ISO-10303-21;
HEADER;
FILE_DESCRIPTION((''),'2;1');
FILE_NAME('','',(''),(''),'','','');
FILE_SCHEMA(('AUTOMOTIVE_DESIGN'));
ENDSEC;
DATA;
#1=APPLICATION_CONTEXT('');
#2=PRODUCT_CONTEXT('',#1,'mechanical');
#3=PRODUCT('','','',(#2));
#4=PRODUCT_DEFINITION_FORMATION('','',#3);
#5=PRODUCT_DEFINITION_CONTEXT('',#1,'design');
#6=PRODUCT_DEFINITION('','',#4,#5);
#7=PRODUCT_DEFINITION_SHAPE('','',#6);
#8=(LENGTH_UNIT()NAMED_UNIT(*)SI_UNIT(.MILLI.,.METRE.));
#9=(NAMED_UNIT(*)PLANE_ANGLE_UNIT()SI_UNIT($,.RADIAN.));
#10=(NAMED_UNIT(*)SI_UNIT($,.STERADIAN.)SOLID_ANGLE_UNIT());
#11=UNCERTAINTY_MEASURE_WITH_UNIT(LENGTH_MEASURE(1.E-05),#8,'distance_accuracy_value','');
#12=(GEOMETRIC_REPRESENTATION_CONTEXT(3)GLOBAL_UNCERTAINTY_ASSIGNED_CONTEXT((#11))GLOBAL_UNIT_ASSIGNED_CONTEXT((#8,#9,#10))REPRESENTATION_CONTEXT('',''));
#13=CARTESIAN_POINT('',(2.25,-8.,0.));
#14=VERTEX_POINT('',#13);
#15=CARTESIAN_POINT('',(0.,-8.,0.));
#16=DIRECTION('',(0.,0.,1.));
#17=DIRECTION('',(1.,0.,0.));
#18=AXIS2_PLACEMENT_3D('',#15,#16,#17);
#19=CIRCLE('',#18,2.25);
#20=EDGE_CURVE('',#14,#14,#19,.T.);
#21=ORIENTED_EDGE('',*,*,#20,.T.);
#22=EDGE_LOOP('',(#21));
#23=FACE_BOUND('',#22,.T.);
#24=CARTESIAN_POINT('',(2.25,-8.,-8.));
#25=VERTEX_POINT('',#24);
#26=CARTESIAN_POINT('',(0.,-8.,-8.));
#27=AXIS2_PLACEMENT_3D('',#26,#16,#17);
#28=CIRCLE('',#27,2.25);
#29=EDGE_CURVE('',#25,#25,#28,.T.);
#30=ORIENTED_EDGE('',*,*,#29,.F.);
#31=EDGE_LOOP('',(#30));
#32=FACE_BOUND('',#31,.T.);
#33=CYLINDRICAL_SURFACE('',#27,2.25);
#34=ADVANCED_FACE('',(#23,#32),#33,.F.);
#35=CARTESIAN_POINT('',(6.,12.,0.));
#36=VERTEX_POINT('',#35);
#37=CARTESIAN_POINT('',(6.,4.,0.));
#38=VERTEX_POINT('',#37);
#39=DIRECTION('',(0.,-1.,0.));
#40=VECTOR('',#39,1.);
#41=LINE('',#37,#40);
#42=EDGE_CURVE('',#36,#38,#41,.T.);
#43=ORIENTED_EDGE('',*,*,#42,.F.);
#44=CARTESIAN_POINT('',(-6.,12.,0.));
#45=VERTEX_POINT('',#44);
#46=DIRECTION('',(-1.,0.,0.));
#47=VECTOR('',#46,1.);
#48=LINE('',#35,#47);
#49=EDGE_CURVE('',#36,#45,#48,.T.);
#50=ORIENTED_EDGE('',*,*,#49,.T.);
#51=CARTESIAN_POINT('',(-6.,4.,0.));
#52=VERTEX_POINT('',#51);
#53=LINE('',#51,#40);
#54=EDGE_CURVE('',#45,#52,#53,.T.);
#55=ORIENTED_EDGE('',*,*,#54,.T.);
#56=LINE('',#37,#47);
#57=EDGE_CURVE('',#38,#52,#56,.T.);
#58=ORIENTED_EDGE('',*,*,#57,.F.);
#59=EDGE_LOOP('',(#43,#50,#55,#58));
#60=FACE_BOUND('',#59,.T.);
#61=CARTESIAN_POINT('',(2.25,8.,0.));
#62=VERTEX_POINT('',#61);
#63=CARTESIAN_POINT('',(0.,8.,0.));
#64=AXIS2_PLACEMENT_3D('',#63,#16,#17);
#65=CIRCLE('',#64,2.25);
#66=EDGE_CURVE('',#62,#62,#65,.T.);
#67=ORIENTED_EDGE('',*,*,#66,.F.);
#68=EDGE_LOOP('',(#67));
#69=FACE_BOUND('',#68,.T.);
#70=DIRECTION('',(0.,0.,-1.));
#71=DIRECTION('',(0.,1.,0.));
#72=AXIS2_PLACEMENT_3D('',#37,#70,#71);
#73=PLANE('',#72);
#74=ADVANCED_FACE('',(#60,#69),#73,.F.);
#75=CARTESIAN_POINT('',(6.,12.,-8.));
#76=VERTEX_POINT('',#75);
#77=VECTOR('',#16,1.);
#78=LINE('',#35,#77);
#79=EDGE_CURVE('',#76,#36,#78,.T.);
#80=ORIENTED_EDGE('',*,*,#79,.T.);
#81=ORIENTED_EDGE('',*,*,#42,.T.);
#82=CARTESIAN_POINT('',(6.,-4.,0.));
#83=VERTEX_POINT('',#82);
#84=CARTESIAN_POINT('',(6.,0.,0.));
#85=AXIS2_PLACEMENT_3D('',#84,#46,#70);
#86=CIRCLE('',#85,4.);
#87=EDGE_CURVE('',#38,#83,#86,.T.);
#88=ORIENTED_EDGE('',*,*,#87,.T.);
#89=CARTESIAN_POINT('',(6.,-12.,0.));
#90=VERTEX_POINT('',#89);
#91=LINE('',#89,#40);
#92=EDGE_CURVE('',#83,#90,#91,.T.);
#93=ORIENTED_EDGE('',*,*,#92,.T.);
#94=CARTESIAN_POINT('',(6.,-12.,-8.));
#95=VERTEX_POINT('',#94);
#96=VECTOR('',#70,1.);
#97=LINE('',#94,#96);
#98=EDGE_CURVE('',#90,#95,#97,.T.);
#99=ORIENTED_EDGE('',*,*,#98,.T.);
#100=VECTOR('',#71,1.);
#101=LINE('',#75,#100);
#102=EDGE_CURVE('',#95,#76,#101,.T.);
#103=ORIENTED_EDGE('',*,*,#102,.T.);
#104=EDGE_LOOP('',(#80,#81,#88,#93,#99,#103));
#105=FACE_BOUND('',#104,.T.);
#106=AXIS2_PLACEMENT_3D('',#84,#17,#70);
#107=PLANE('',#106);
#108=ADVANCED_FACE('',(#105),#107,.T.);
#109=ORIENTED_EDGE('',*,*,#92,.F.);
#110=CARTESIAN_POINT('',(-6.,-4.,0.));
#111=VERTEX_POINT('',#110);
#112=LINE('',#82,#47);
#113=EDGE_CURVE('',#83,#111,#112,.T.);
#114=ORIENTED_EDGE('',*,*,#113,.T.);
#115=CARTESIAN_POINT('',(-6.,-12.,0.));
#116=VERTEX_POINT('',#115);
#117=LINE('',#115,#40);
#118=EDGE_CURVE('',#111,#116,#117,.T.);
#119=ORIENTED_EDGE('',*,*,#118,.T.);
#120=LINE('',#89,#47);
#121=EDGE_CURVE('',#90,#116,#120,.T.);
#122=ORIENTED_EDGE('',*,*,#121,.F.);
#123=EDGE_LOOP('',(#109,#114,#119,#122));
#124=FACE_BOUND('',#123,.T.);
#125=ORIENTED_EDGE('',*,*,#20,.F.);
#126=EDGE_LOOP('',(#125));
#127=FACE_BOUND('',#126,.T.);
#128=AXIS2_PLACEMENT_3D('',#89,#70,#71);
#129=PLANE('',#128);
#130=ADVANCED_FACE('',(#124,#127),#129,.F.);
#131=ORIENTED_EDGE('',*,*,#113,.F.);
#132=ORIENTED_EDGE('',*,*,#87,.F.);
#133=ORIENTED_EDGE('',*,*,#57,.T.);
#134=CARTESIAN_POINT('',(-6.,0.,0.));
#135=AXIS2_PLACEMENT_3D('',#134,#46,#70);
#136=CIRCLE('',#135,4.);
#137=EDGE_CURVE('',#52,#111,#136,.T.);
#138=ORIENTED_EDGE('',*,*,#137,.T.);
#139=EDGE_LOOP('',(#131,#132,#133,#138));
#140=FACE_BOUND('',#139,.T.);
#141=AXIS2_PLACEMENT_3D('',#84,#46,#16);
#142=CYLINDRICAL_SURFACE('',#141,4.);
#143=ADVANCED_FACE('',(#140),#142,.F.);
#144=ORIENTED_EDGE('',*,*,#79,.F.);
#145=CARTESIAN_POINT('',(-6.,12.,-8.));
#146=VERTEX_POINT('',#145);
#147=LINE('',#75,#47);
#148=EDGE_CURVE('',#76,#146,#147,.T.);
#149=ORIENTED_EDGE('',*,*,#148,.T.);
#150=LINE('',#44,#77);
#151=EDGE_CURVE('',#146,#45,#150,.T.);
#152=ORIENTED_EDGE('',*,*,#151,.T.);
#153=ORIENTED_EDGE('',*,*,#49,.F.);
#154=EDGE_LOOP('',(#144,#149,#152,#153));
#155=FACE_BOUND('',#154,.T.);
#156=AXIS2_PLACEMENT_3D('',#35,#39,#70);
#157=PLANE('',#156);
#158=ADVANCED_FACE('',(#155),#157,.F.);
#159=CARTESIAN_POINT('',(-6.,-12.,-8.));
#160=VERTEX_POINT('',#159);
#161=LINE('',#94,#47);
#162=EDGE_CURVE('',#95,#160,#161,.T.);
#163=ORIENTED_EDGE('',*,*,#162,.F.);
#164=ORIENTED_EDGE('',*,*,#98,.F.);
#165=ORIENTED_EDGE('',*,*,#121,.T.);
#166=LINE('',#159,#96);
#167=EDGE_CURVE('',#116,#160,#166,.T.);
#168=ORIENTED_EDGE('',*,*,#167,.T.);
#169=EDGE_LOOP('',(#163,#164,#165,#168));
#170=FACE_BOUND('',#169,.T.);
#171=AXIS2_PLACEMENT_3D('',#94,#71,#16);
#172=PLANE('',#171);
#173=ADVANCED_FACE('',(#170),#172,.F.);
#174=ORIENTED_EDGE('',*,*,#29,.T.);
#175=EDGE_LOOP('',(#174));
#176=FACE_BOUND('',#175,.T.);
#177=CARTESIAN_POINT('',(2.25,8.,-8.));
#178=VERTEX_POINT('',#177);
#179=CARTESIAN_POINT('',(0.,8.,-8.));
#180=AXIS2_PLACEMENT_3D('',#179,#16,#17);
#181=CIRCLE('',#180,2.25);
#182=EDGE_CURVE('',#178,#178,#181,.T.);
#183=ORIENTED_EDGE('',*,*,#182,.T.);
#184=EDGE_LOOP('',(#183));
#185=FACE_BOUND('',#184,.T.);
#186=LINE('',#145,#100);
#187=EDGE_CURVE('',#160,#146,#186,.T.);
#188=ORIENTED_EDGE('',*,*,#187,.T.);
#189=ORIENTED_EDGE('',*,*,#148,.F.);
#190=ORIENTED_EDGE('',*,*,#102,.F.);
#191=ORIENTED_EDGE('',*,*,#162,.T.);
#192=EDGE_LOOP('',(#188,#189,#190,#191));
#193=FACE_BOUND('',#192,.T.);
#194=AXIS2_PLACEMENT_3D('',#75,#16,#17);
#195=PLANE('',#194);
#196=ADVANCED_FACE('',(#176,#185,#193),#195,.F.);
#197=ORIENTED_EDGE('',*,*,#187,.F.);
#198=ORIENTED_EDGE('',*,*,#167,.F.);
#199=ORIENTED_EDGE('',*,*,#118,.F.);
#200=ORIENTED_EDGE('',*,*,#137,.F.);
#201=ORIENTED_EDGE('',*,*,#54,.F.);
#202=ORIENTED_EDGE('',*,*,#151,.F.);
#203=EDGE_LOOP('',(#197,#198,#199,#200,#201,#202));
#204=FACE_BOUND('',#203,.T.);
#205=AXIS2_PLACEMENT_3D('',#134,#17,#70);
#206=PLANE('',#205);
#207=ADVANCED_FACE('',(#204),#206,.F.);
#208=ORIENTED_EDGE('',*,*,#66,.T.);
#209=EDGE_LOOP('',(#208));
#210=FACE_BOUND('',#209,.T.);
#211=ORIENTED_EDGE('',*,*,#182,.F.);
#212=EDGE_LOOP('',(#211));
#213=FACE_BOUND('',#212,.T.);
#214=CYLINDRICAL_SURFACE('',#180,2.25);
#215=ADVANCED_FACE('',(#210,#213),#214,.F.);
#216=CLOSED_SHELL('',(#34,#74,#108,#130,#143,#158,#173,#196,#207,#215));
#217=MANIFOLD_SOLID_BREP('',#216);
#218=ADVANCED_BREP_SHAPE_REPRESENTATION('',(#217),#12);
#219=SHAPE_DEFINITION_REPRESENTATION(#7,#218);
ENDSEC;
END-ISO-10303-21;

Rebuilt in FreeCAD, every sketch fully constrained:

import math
import FreeCAD as App
import Part
import Sketcher

doc = App.newDocument("Part")
params = doc.addObject("Spreadsheet::Sheet", "Params")
for row, (alias, value) in enumerate([
    ("sketch1_radius", "4 mm"),
    ("sketch1_width", "8 mm"),
    ("pad1_length", "12 mm"),
    ("sketch2_diameter", "4.5 mm"),
], start=1):
    params.set(f"A{row}", alias)
    params.set(f"B{row}", "=" + value)
    params.setAlias(f"B{row}", alias)

body = doc.addObject("PartDesign::Body", "Body")

# Sketch on YZ plane
sketch1 = body.newObject("Sketcher::SketchObject", "Sketch")
sketch1.AttachmentSupport = (doc.getObject("YZ_Plane"), [""])
sketch1.MapMode = "FlatFace"
sketch1.addGeometry([
    Part.LineSegment(App.Vector(12, 0, 0), App.Vector(4, 0, 0)),  # 0
    Part.ArcOfCircle(Part.Circle(App.Vector(0, 0, 0), App.Vector(0, 0, 1), 4), math.radians(180), math.radians(360)),  # 1
    Part.LineSegment(App.Vector(-4, 0, 0), App.Vector(-12, 0, 0)),  # 2
    Part.LineSegment(App.Vector(-12, 0, 0), App.Vector(-12, -8, 0)),  # 3
    Part.LineSegment(App.Vector(-12, -8, 0), App.Vector(12, -8, 0)),  # 4
    Part.LineSegment(App.Vector(12, -8, 0), App.Vector(12, 0, 0)),  # 5
], False)
sketch1.addConstraint([
    Sketcher.Constraint("Coincident", 0, 2, 1, 2),
    Sketcher.Constraint("Coincident", 1, 1, 2, 1),
    Sketcher.Constraint("Coincident", 2, 2, 3, 1),
    Sketcher.Constraint("Coincident", 3, 2, 4, 1),
    Sketcher.Constraint("Coincident", 4, 2, 5, 1),
    Sketcher.Constraint("Coincident", 5, 2, 0, 1),
    Sketcher.Constraint("Horizontal", 0),
    Sketcher.Constraint("Horizontal", 2),
    Sketcher.Constraint("Vertical", 3),
    Sketcher.Constraint("Horizontal", 4),
    Sketcher.Constraint("Vertical", 5),
    Sketcher.Constraint("Coincident", 1, 3, -1, 1),
    Sketcher.Constraint("Symmetric", 2, 2, 5, 2, -1, 1),
    Sketcher.Constraint("PointOnObject", 0, 2, -1),
    Sketcher.Constraint("Equal", 2, 3),
    Sketcher.Constraint("Radius", 1, 4.0),
    Sketcher.Constraint("DistanceX", 0, 2, 0, 1, 8.0),
])
sketch1.setExpression("Constraints[15]", "Params.sketch1_radius")
sketch1.setExpression("Constraints[16]", "Params.sketch1_width")
pad1 = body.newObject("PartDesign::Pad", "Pad")
pad1.Profile = sketch1
pad1.setExpression("Length", "Params.pad1_length")
pad1.Midplane = True

# Sketch on XY plane
sketch2 = body.newObject("Sketcher::SketchObject", "Sketch001")
sketch2.AttachmentSupport = (doc.getObject("XY_Plane"), [""])
sketch2.MapMode = "FlatFace"
sketch2.addGeometry([
    Part.Circle(App.Vector(0, 8, 0), App.Vector(0, 0, 1), 2.2),
    Part.Circle(App.Vector(0, -8, 0), App.Vector(0, 0, 1), 2.2),
], False)
sketch2.addConstraint([
    Sketcher.Constraint("Equal", 0, 1),
    Sketcher.Constraint("Symmetric", 0, 3, 1, 3, -1, 1),
    Sketcher.Constraint("PointOnObject", 0, 3, -2),
    Sketcher.Constraint("Diameter", 0, 4.5),
    Sketcher.Constraint("DistanceY", -1, 1, 0, 3, 8.0),
])
sketch2.setExpression("Constraints[3]", "Params.sketch2_diameter")
pocket1 = body.newObject("PartDesign::Pocket", "Pocket")
pocket1.Profile = sketch2
pocket1.Type = "ThroughAll"

doc.recompute()
